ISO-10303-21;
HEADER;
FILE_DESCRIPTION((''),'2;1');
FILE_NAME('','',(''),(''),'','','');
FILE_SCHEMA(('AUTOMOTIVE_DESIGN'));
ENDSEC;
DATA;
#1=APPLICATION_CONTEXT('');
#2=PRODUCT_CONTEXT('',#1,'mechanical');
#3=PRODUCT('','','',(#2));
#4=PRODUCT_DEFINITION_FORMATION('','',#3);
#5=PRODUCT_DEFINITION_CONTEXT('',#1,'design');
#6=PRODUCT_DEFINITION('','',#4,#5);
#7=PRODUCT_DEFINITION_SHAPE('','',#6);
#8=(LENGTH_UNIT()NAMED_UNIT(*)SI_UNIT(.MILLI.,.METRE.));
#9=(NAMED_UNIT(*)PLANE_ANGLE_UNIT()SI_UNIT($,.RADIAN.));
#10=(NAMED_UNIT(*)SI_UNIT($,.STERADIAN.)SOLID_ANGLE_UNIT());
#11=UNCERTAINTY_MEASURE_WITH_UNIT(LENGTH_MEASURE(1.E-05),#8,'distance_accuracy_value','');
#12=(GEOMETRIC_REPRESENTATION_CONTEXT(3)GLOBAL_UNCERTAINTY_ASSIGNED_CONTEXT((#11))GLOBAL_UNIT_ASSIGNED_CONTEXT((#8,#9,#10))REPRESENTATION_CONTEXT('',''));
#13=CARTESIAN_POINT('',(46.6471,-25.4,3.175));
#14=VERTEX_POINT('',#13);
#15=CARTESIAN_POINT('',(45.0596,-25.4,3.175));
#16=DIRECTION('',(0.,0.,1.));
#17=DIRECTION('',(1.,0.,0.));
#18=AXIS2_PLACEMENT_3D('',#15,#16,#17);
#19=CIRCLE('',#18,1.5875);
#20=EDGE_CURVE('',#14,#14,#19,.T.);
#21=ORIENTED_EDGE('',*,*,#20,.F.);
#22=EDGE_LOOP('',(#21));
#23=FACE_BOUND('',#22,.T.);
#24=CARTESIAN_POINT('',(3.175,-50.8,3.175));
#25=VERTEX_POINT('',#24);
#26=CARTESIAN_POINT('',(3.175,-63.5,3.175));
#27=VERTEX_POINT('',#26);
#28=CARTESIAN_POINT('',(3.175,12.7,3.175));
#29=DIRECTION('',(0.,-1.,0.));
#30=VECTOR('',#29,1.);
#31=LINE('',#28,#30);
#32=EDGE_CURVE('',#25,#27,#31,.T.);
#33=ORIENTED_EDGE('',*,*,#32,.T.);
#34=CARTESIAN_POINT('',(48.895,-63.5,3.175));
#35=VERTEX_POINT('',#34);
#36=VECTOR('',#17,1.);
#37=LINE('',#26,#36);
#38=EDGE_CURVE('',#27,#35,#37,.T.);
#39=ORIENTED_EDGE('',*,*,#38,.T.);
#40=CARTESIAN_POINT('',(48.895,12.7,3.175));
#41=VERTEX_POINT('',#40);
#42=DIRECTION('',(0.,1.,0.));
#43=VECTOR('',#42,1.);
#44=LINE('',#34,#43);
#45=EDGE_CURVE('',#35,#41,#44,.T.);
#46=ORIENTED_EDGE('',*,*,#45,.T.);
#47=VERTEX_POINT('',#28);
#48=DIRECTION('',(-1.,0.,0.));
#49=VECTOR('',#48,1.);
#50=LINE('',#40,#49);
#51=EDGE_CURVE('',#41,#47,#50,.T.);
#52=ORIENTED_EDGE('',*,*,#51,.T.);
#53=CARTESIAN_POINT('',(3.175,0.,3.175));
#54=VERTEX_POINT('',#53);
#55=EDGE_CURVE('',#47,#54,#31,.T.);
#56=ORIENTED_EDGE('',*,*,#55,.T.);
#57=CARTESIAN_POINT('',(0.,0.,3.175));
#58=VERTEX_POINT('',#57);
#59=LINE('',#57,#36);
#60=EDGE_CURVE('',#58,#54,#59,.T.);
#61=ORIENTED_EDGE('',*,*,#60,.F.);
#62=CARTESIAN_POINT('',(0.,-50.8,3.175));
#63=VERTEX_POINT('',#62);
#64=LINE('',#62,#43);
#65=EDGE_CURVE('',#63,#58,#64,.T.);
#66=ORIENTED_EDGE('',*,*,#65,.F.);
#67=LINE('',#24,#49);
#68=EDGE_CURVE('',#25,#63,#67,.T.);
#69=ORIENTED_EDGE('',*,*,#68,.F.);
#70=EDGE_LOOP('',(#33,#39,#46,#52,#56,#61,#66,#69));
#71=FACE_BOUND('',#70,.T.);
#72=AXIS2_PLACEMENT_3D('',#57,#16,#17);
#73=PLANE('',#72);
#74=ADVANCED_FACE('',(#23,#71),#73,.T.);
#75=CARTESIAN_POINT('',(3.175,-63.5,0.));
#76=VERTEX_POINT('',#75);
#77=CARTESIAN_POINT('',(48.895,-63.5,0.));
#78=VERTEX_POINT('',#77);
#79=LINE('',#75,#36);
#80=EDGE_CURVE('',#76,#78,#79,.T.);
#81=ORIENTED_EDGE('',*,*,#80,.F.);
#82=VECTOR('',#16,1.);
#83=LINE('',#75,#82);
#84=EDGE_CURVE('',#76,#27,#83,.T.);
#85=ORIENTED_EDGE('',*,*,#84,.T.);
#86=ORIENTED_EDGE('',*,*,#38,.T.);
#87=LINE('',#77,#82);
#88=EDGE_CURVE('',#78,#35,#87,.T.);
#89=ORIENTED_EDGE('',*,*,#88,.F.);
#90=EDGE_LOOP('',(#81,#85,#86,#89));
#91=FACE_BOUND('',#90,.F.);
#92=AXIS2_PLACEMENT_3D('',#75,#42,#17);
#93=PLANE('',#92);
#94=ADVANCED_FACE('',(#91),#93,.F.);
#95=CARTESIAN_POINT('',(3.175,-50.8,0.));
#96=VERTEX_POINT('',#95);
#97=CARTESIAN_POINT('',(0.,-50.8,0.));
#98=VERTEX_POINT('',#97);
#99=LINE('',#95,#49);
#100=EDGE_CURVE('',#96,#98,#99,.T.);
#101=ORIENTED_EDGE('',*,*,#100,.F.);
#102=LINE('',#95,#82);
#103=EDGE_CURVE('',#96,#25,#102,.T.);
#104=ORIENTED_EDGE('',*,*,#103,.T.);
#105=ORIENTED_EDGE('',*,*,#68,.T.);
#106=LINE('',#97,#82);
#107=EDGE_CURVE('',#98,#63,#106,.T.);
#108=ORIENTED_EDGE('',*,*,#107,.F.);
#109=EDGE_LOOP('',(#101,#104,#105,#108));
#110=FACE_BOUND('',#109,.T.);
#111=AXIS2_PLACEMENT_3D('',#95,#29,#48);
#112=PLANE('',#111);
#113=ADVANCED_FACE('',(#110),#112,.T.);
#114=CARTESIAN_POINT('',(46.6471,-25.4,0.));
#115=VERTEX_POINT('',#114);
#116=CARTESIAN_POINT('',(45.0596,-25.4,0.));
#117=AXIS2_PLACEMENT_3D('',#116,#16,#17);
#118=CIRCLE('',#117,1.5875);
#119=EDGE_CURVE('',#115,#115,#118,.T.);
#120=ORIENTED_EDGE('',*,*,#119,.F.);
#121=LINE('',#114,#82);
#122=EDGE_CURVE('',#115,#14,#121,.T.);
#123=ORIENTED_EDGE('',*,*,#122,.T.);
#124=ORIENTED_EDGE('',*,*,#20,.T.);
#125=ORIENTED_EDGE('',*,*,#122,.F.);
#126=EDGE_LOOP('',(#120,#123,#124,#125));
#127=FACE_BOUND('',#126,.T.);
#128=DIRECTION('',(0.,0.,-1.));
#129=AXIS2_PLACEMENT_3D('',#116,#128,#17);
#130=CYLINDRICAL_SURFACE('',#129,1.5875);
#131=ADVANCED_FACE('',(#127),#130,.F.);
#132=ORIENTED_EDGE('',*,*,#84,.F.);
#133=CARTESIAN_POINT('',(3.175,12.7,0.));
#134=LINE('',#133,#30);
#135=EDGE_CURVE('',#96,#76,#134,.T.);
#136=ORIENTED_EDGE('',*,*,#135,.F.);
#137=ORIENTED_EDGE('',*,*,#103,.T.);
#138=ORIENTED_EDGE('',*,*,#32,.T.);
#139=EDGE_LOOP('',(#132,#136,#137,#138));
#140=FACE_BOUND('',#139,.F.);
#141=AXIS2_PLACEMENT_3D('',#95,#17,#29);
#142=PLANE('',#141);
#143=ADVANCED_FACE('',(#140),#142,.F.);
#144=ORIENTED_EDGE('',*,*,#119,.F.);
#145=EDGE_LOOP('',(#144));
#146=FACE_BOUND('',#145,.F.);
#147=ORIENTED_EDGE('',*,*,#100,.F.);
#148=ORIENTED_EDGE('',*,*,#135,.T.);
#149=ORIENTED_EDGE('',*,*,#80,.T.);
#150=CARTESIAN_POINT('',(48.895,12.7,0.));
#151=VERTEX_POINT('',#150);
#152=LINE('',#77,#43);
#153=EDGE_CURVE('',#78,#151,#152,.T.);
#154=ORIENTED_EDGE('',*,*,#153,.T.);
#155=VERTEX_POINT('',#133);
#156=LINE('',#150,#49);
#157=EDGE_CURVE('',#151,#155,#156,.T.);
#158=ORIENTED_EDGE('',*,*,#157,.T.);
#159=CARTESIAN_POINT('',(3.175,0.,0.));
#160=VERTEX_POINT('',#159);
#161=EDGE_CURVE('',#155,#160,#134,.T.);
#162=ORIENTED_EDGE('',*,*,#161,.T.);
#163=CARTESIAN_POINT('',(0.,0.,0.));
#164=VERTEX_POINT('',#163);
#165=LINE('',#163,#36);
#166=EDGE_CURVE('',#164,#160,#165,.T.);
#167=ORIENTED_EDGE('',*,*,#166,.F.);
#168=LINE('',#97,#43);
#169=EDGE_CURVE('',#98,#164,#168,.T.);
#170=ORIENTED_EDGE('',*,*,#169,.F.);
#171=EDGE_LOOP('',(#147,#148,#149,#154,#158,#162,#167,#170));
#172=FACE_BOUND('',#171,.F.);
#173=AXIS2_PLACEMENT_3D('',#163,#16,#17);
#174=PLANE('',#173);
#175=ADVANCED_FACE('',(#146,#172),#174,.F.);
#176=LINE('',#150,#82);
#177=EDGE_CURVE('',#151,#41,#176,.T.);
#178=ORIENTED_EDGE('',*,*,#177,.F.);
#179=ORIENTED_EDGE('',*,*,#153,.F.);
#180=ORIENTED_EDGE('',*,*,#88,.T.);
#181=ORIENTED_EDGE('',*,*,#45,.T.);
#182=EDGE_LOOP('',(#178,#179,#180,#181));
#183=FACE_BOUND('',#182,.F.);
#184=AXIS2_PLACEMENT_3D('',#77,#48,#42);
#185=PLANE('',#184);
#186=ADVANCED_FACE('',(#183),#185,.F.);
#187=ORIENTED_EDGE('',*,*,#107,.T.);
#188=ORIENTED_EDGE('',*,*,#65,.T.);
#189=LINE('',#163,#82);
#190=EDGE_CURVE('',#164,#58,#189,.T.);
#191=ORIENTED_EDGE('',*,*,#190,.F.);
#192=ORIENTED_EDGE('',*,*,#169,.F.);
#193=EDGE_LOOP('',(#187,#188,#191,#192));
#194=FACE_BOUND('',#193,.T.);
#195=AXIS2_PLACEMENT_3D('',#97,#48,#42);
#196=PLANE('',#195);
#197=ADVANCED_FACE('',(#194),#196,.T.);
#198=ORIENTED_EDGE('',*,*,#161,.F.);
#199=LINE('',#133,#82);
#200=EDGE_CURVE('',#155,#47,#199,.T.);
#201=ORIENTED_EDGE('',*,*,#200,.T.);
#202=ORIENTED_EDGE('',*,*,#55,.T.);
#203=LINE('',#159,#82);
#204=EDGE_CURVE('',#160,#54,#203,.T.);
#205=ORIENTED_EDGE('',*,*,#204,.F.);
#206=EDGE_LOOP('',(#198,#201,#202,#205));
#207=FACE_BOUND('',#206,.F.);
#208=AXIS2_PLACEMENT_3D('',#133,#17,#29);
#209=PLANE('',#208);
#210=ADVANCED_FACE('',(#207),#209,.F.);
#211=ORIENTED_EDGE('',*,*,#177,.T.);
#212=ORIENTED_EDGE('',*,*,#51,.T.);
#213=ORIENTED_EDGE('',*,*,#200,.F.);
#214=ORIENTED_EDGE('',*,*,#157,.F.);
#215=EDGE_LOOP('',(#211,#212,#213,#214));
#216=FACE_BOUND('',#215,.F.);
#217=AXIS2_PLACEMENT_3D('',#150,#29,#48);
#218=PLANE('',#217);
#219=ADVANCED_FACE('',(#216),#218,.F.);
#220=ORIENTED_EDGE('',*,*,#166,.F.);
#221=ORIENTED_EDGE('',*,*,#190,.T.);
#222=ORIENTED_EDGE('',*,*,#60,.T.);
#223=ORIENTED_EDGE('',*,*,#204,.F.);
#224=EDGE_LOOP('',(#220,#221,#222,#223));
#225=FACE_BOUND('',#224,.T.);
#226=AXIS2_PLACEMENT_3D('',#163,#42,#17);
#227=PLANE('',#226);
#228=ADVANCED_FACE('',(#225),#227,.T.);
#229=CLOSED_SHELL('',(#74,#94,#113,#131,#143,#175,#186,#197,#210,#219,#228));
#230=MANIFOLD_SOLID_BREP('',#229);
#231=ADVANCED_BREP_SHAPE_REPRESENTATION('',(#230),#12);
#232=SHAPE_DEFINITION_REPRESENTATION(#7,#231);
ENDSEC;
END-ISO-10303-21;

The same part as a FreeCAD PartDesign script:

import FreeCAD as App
import Part
import Sketcher
from FreeCAD import Vector
Q = App.Units.Quantity


def add_polygon(sketch, points):
    """Adds a closed chain of lines whose ends are joined by coincident constraints."""
    first, n = sketch.GeometryCount, len(points)
    for a, b in zip(points, points[1:] + points[:1]):
        sketch.addGeometry(Part.LineSegment(App.Vector(*a, 0), App.Vector(*b, 0)), False)
    for i in range(n):
        sketch.addConstraint(Sketcher.Constraint("Coincident", first + i, 2, first + (i + 1) % n, 1))

doc = App.newDocument("Part")
body = doc.addObject("PartDesign::Body", "Body")

# Sketch on XY plane
sketch1 = body.newObject("Sketcher::SketchObject", "Sketch")
sketch1.AttachmentSupport = (doc.getObject("XY_Plane"), [""])
sketch1.MapMode = "FlatFace"
add_polygon(sketch1, [(3.2, 0), (0, 0), (0, -50.8), (3.2, -50.8), (3.2, -63.5), (48.9, -63.5), (48.9, 12.7), (3.2, 12.7)])  # lines 0-7
sketch1.addGeometry(Part.Circle(Vector(45.1, -25.4, 0), Vector(0, 0, 1), 1.6), False)  # 8
sketch1.addConstraint([
    Sketcher.Constraint("Horizontal", 0),
    Sketcher.Constraint("Vertical", 1),
    Sketcher.Constraint("Horizontal", 2),
    Sketcher.Constraint("Vertical", 3),
    Sketcher.Constraint("Horizontal", 4),
    Sketcher.Constraint("Vertical", 5),
    Sketcher.Constraint("Horizontal", 6),
    Sketcher.Constraint("Vertical", 7),
    Sketcher.Constraint("Coincident", 0, 2, -1, 1),
    Sketcher.Constraint("Vertical", 3, 2, 6, 2),
    Sketcher.Constraint("Equal", 3, 7),
    Sketcher.Constraint("DistanceY", 1, 2, 1, 1, Q("2 in")),
    Sketcher.Constraint("DistanceY", 5, 1, 5, 2, Q("3 in")),
    Sketcher.Constraint("Diameter", 8, Q("0.125 in")),
    Sketcher.Constraint("DistanceX", 4, 1, 4, 2, Q("1.8 in")),
    Sketcher.Constraint("DistanceY", 3, 2, 8, 3, Q("1.5 in")),
    Sketcher.Constraint("DistanceX", 0, 2, 0, 1, Q("0.125 in")),
    Sketcher.Constraint("DistanceX", 2, 2, 8, 3, Q("1.649 in")),
])
pad1 = body.newObject("PartDesign::Pad", "Pad")
pad1.Profile = sketch1
pad1.Length = Q("0.125 in")

doc.recompute()
